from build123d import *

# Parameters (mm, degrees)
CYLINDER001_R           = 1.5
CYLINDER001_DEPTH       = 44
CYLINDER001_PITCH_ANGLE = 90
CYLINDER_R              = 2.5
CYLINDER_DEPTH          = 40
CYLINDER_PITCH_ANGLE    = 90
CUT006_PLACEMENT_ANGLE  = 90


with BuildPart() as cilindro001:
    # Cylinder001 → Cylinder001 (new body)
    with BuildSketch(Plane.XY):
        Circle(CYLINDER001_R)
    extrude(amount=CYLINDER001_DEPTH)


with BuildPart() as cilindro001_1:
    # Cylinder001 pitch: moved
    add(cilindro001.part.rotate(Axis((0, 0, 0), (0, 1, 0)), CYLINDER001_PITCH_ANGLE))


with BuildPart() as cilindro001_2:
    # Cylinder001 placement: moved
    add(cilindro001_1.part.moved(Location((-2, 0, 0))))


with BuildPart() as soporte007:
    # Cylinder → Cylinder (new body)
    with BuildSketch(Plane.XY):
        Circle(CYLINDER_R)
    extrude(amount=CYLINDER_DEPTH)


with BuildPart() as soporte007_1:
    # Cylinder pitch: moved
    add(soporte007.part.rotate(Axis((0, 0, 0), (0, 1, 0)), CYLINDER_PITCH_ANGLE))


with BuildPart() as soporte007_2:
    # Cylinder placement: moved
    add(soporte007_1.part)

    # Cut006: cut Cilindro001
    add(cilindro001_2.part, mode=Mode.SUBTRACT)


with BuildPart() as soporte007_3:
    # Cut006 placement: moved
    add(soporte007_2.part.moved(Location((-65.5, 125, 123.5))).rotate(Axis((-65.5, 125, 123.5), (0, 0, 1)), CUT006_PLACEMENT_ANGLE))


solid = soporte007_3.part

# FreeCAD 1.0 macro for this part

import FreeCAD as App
import Part
import Sketcher

V = App.Vector

doc = App.newDocument("Part")
body = doc.addObject("PartDesign::Body", "Body")

# Sketch on XY plane
sketch1 = body.newObject("Sketcher::SketchObject", "Sketch")
sketch1.AttachmentSupport = (doc.getObject("XY_Plane"), [""])
sketch1.MapMode = "FlatFace"
sketch1.addGeometry(Part.Circle(V(0, 0, 0), V(0, 0, 1), 1.5), False)
sketch1.addConstraint(Sketcher.Constraint("Coincident", 0, 3, -1, 1))
sketch1.addConstraint(Sketcher.Constraint("Diameter", 0, 3.0))
pad1 = body.newObject("PartDesign::Pad", "Pad")
pad1.Profile = sketch1
pad1.Length = 44
body2 = doc.addObject("PartDesign::Body", "Body001")
doc.recompute()

body.Placement = App.Placement(V(0, 0, 0), App.Rotation(V(0, 1, 0), 90))
boolean = body2.newObject("PartDesign::Boolean", "Boolean")
boolean.Type = "Fuse"
boolean.addObjects([body])
body3 = doc.addObject("PartDesign::Body", "Body002")
doc.recompute()

body2.Placement = App.Placement(V(-2, 0, 0), App.Rotation(V(0, 0, 1), 0))
boolean2 = body3.newObject("PartDesign::Boolean", "Boolean001")
boolean2.Type = "Fuse"
boolean2.addObjects([body2])
body4 = doc.addObject("PartDesign::Body", "Body003")

# Sketch on XY plane
sketch2 = body4.newObject("Sketcher::SketchObject", "Sketch001")
sketch2.AttachmentSupport = (doc.getObject("XY_Plane003"), [""])
sketch2.MapMode = "FlatFace"
sketch2.addGeometry(Part.Circle(V(0, 0, 0), V(0, 0, 1), 2.5), False)
sketch2.addConstraint(Sketcher.Constraint("Coincident", 0, 3, -1, 1))
sketch2.addConstraint(Sketcher.Constraint("Diameter", 0, 5.0))
pad2 = body4.newObject("PartDesign::Pad", "Pad001")
pad2.Profile = sketch2
pad2.Length = 40
body5 = doc.addObject("PartDesign::Body", "Body004")
doc.recompute()

body4.Placement = App.Placement(V(0, 0, 0), App.Rotation(V(0, 1, 0), 90))
boolean3 = body5.newObject("PartDesign::Boolean", "Boolean002")
boolean3.Type = "Fuse"
boolean3.addObjects([body4])
doc.recompute()

boolean4 = body5.newObject("PartDesign::Boolean", "Boolean003")
boolean4.Type = "Cut"
boolean4.addObjects([body3])
body6 = doc.addObject("PartDesign::Body", "Body005")
doc.recompute()

body5.Placement = App.Placement(V(-65.5, 125, 123.5), App.Rotation(V(0, 0, 1), 90))
boolean5 = body6.newObject("PartDesign::Boolean", "Boolean004")
boolean5.Type = "Fuse"
boolean5.addObjects([body5])

doc.recompute()
